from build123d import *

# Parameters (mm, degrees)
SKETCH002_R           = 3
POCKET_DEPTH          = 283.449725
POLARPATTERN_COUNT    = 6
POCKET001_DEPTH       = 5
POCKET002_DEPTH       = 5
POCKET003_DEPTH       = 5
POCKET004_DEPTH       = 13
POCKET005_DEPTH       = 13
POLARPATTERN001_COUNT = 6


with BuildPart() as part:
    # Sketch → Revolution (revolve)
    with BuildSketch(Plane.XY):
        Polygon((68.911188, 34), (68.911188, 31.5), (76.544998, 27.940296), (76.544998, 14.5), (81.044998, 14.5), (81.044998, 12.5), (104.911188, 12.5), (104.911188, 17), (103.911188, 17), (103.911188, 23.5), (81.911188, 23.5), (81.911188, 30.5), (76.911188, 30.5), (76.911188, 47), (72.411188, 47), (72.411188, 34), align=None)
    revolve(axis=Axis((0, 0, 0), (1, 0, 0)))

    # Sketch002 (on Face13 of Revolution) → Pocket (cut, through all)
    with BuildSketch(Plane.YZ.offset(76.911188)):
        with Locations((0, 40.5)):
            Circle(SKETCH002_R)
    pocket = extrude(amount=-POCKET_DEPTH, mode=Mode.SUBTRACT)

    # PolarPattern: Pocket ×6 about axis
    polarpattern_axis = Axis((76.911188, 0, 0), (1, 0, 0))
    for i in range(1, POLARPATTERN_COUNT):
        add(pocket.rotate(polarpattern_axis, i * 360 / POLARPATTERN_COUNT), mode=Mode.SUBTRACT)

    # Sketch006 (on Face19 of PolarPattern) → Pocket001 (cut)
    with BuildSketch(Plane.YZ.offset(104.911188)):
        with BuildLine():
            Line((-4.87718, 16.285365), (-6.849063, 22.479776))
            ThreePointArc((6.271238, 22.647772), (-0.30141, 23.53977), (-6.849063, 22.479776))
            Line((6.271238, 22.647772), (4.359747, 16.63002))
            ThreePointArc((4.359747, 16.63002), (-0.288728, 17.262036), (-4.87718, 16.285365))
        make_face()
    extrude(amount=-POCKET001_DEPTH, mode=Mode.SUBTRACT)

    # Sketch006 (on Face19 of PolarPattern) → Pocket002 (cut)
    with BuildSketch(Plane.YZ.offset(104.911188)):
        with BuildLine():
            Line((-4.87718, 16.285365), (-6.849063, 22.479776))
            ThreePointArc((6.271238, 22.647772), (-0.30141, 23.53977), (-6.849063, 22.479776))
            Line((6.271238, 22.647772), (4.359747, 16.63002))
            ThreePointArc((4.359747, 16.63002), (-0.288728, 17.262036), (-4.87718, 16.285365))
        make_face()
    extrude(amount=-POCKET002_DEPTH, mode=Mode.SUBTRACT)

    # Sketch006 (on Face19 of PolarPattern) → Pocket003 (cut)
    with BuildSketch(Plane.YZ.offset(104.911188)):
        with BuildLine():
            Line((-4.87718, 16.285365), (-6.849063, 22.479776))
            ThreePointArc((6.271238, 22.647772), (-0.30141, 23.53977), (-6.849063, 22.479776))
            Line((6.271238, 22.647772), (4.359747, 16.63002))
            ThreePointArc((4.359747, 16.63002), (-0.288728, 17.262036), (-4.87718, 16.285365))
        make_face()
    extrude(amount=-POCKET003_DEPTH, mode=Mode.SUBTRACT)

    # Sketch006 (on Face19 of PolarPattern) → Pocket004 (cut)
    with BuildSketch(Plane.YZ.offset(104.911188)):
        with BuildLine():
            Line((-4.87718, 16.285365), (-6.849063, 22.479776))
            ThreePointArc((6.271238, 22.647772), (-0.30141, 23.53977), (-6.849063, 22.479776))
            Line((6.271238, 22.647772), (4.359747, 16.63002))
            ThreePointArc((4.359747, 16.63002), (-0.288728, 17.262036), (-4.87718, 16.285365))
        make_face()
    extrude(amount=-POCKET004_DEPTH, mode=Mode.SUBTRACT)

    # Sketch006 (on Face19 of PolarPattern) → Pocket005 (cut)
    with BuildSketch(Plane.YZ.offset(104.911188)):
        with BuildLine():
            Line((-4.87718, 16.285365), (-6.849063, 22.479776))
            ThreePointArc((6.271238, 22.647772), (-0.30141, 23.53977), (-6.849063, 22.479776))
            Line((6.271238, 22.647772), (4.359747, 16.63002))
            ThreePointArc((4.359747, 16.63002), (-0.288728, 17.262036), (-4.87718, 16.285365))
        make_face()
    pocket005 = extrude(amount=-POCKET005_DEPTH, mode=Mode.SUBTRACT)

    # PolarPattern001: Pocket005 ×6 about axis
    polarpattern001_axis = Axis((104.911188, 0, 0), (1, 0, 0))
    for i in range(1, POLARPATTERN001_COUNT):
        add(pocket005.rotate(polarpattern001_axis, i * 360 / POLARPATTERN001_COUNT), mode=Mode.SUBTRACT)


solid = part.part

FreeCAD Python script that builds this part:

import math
import FreeCAD as App
import Part
import Sketcher
from FreeCAD import Vector
Q = App.Units.Quantity


def add_polygon(sketch, points):
    """Adds a closed chain of lines whose ends are joined by coincident constraints."""
    first, n = sketch.GeometryCount, len(points)
    for a, b in zip(points, points[1:] + points[:1]):
        sketch.addGeometry(Part.LineSegment(App.Vector(*a, 0), App.Vector(*b, 0)), False)
    for i in range(n):
        sketch.addConstraint(Sketcher.Constraint("Coincident", first + i, 2, first + (i + 1) % n, 1))

doc = App.newDocument("Part")
body = doc.addObject("PartDesign::Body", "Body")

# Sketch on XY plane
sketch1 = doc.addObject("Sketcher::SketchObject", "Sketch")
body.addObject(sketch1)
sketch1.AttachmentSupport = (doc.XY_Plane, [""])
sketch1.MapMode = "FlatFace"
add_polygon(sketch1, [(68.9, 34), (68.9, 31.5), (76.5, 27.9), (76.5, 14.5), (81, 14.5), (81, 12.5), (104.9, 12.5), (104.9, 17), (103.9, 17), (103.9, 23.5), (81.9, 23.5), (81.9, 30.5), (76.9, 30.5), (76.9, 47), (72.4, 47), (72.4, 34)])  # lines 0-15
sketch1.addConstraint(Sketcher.Constraint("Vertical", 0))
sketch1.addConstraint(Sketcher.Constraint("Vertical", 2))
sketch1.addConstraint(Sketcher.Constraint("Horizontal", 3))
sketch1.addConstraint(Sketcher.Constraint("Vertical", 4))
sketch1.addConstraint(Sketcher.Constraint("Horizontal", 5))
sketch1.addConstraint(Sketcher.Constraint("Vertical", 6))
sketch1.addConstraint(Sketcher.Constraint("Horizontal", 7))
sketch1.addConstraint(Sketcher.Constraint("Vertical", 8))
sketch1.addConstraint(Sketcher.Constraint("Horizontal", 9))
sketch1.addConstraint(Sketcher.Constraint("Vertical", 10))
sketch1.addConstraint(Sketcher.Constraint("Horizontal", 11))
sketch1.addConstraint(Sketcher.Constraint("Vertical", 12))
sketch1.addConstraint(Sketcher.Constraint("Horizontal", 13))
sketch1.addConstraint(Sketcher.Constraint("Vertical", 14))
sketch1.addConstraint(Sketcher.Constraint("Horizontal", 15))
sketch1.addConstraint(Sketcher.Constraint("Equal", 3, 13))
sketch1.addConstraint(Sketcher.Constraint("Equal", 13, 6))
sketch1.addConstraint(Sketcher.Constraint("DistanceX", 7, 2, 7, 1, Q("1 mm")))
sketch1.addConstraint(Sketcher.Constraint("DistanceX", 9, 2, 9, 1, Q("22 mm")))
sketch1.addConstraint(Sketcher.Constraint("DistanceX", 11, 2, 11, 1, Q("5 mm")))
sketch1.addConstraint(Sketcher.Constraint("DistanceY", 4, 2, 4, 1, Q("2 mm")))
sketch1.addConstraint(Sketcher.Constraint("DistanceY", 10, 1, 10, 2, Q("7 mm")))
sketch1.addConstraint(Sketcher.Constraint("DistanceY", 14, 2, 14, 1, Q("13 mm")))
sketch1.addConstraint(Sketcher.Constraint("Angle", 1, Q("-25 deg")))
sketch1.addConstraint(Sketcher.Constraint("DistanceX", 3, 1, 3, 2, Q("4.5 mm")))
sketch1.addConstraint(Sketcher.Constraint("DistanceX", 15, 2, 15, 1, Q("3.5 mm")))
sketch1.addConstraint(Sketcher.Constraint("DistanceY", 0, 2, 0, 1, Q("2.5 mm")))
sketch1.addConstraint(Sketcher.Constraint("DistanceY", 8, 1, 8, 2, Q("6.5 mm")))
sketch1.addConstraint(Sketcher.Constraint("DistanceY", 12, 1, 12, 2, Q("16.5 mm")))
sketch1.addConstraint(Sketcher.Constraint("DistanceY", -1, 1, 6, 2, Q("17 mm")))
sketch1.addConstraint(Sketcher.Constraint("DistanceX", -1, 1, 1, 2, Q("76.544998 mm")))
sketch1.addConstraint(Sketcher.Constraint("DistanceX", 5, 1, 5, 2, Q("23.86619 mm")))
revolution = doc.addObject("PartDesign::Revolution", "Revolution")
body.addObject(revolution)
revolution.Profile = sketch1
revolution.ReferenceAxis = (sketch1, ["H_Axis"])
revolution.Angle = 360

# Sketch on YZ plane
sketch2 = doc.addObject("Sketcher::SketchObject", "Sketch001")
body.addObject(sketch2)
sketch2.AttachmentSupport = (doc.YZ_Plane, [""])
sketch2.MapMode = "FlatFace"
sketch2.AttachmentOffset = App.Placement(Vector(0, 0, 76.911188), App.Rotation())
sketch2.addGeometry(Part.Circle(Vector(0, 40.5, 0), Vector(0, 0, 1), 3), False)
sketch2.addConstraint(Sketcher.Constraint("PointOnObject", 0, 3, -2))
sketch2.addConstraint(Sketcher.Constraint("Diameter", 0, Q("6 mm")))
sketch2.addConstraint(Sketcher.Constraint("DistanceY", -1, 1, 0, 3, Q("40.5 mm")))
pocket1 = doc.addObject("PartDesign::Pocket", "Pocket")
body.addObject(pocket1)
pocket1.Profile = sketch2
pocket1.Type = "ThroughAll"
doc.recompute()

polarpattern = doc.addObject("PartDesign::PolarPattern", "PolarPattern")
body.addObject(polarpattern)
polarpattern.Originals = [pocket1]
polarpattern.Axis = (doc.X_Axis, [""])
polarpattern.Angle = 360
polarpattern.Occurrences = 6
body.Tip = polarpattern

# Sketch on YZ plane
sketch3 = doc.addObject("Sketcher::SketchObject", "Sketch002")
body.addObject(sketch3)
sketch3.AttachmentSupport = (doc.YZ_Plane, [""])
sketch3.MapMode = "FlatFace"
sketch3.AttachmentOffset = App.Placement(Vector(0, 0, 104.911188), App.Rotation())
sketch3.addGeometry(Part.LineSegment(Vector(-7, 22, 0), Vector(-5, 16, 0)), False)
sketch3.addGeometry(Part.ArcOfCircle(Part.Circle(Vector(0, 4, 0), Vector(0, 0, 1), 14), math.radians(72), math.radians(112)), False)
sketch3.addGeometry(Part.LineSegment(Vector(4, 17, 0), Vector(6, 23, 0)), False)
sketch3.addGeometry(Part.ArcOfCircle(Part.Circle(Vector(0, 1, 0), Vector(0, 0, 1), 23), math.radians(74), math.radians(108)), False)
sketch3.addConstraint(Sketcher.Constraint("Coincident", 0, 2, 1, 2))
sketch3.addConstraint(Sketcher.Constraint("Coincident", 1, 1, 2, 1))
sketch3.addConstraint(Sketcher.Constraint("Coincident", 2, 2, 3, 1))
sketch3.addConstraint(Sketcher.Constraint("Coincident", 3, 2, 0, 1))
sketch3.addConstraint(Sketcher.Constraint("Radius", 3, Q("22.536849 mm")))
sketch3.addConstraint(Sketcher.Constraint("Radius", 1, Q("13.671067 mm")))
sketch3.addConstraint(Sketcher.Constraint("DistanceX", 0, 2, 1, 3, Q("5.098201 mm")))
sketch3.addConstraint(Sketcher.Constraint("DistanceX", 3, 2, 2, 2, Q("13.120301 mm")))
sketch3.addConstraint(Sketcher.Constraint("DistanceY", 1, 3, 3, 2, Q("18.8793 mm")))
sketch3.addConstraint(Sketcher.Constraint("DistanceX", 3, 2, 3, 3, Q("6.836198 mm")))
sketch3.addConstraint(Sketcher.Constraint("DistanceX", -1, 1, 1, 3, Q("0.221021 mm")))
sketch3.addConstraint(Sketcher.Constraint("DistanceY", -1, 1, 3, 3, Q("1.004769 mm")))
sketch3.addConstraint(Sketcher.Constraint("DistanceY", -1, 1, 1, 1, Q("16.63002 mm")))
sketch3.addConstraint(Sketcher.Constraint("DistanceX", -1, 1, 2, 2, Q("6.271238 mm")))
pocket2 = doc.addObject("PartDesign::Pocket", "Pocket001")
body.addObject(pocket2)
pocket2.Profile = sketch3
pocket2.Length = 5

# Sketch on YZ plane
sketch4 = doc.addObject("Sketcher::SketchObject", "Sketch003")
body.addObject(sketch4)
sketch4.AttachmentSupport = (doc.YZ_Plane, [""])
sketch4.MapMode = "FlatFace"
sketch4.AttachmentOffset = App.Placement(Vector(0, 0, 104.911188), App.Rotation())
sketch4.addGeometry(Part.LineSegment(Vector(-7, 22, 0), Vector(-5, 16, 0)), False)
sketch4.addGeometry(Part.ArcOfCircle(Part.Circle(Vector(0, 4, 0), Vector(0, 0, 1), 14), math.radians(72), math.radians(112)), False)
sketch4.addGeometry(Part.LineSegment(Vector(4, 17, 0), Vector(6, 23, 0)), False)
sketch4.addGeometry(Part.ArcOfCircle(Part.Circle(Vector(0, 1, 0), Vector(0, 0, 1), 23), math.radians(74), math.radians(108)), False)
sketch4.addConstraint(Sketcher.Constraint("Coincident", 0, 2, 1, 2))
sketch4.addConstraint(Sketcher.Constraint("Coincident", 1, 1, 2, 1))
sketch4.addConstraint(Sketcher.Constraint("Coincident", 2, 2, 3, 1))
sketch4.addConstraint(Sketcher.Constraint("Coincident", 3, 2, 0, 1))
sketch4.addConstraint(Sketcher.Constraint("Radius", 3, Q("22.536849 mm")))
sketch4.addConstraint(Sketcher.Constraint("Radius", 1, Q("13.671067 mm")))
sketch4.addConstraint(Sketcher.Constraint("DistanceX", 0, 2, 1, 3, Q("5.098201 mm")))
sketch4.addConstraint(Sketcher.Constraint("DistanceX", 3, 2, 2, 2, Q("13.120301 mm")))
sketch4.addConstraint(Sketcher.Constraint("DistanceY", 1, 3, 3, 2, Q("18.8793 mm")))
sketch4.addConstraint(Sketcher.Constraint("DistanceX", 3, 2, 3, 3, Q("6.836198 mm")))
sketch4.addConstraint(Sketcher.Constraint("DistanceX", -1, 1, 1, 3, Q("0.221021 mm")))
sketch4.addConstraint(Sketcher.Constraint("DistanceY", -1, 1, 3, 3, Q("1.004769 mm")))
sketch4.addConstraint(Sketcher.Constraint("DistanceY", -1, 1, 1, 1, Q("16.63002 mm")))
sketch4.addConstraint(Sketcher.Constraint("DistanceX", -1, 1, 2, 2, Q("6.271238 mm")))
pocket3 = doc.addObject("PartDesign::Pocket", "Pocket002")
body.addObject(pocket3)
pocket3.Profile = sketch4
pocket3.Length = 5

# Sketch on YZ plane
sketch5 = doc.addObject("Sketcher::SketchObject", "Sketch004")
body.addObject(sketch5)
sketch5.AttachmentSupport = (doc.YZ_Plane, [""])
sketch5.MapMode = "FlatFace"
sketch5.AttachmentOffset = App.Placement(Vector(0, 0, 104.911188), App.Rotation())
sketch5.addGeometry(Part.LineSegment(Vector(-7, 22, 0), Vector(-5, 16, 0)), False)
sketch5.addGeometry(Part.ArcOfCircle(Part.Circle(Vector(0, 4, 0), Vector(0, 0, 1), 14), math.radians(72), math.radians(112)), False)
sketch5.addGeometry(Part.LineSegment(Vector(4, 17, 0), Vector(6, 23, 0)), False)
sketch5.addGeometry(Part.ArcOfCircle(Part.Circle(Vector(0, 1, 0), Vector(0, 0, 1), 23), math.radians(74), math.radians(108)), False)
sketch5.addConstraint(Sketcher.Constraint("Coincident", 0, 2, 1, 2))
sketch5.addConstraint(Sketcher.Constraint("Coincident", 1, 1, 2, 1))
sketch5.addConstraint(Sketcher.Constraint("Coincident", 2, 2, 3, 1))
sketch5.addConstraint(Sketcher.Constraint("Coincident", 3, 2, 0, 1))
sketch5.addConstraint(Sketcher.Constraint("Radius", 3, Q("22.536849 mm")))
sketch5.addConstraint(Sketcher.Constraint("Radius", 1, Q("13.671067 mm")))
sketch5.addConstraint(Sketcher.Constraint("DistanceX", 0, 2, 1, 3, Q("5.098201 mm")))
sketch5.addConstraint(Sketcher.Constraint("DistanceX", 3, 2, 2, 2, Q("13.120301 mm")))
sketch5.addConstraint(Sketcher.Constraint("DistanceY", 1, 3, 3, 2, Q("18.8793 mm")))
sketch5.addConstraint(Sketcher.Constraint("DistanceX", 3, 2, 3, 3, Q("6.836198 mm")))
sketch5.addConstraint(Sketcher.Constraint("DistanceX", -1, 1, 1, 3, Q("0.221021 mm")))
sketch5.addConstraint(Sketcher.Constraint("DistanceY", -1, 1, 3, 3, Q("1.004769 mm")))
sketch5.addConstraint(Sketcher.Constraint("DistanceY", -1, 1, 1, 1, Q("16.63002 mm")))
sketch5.addConstraint(Sketcher.Constraint("DistanceX", -1, 1, 2, 2, Q("6.271238 mm")))
pocket4 = doc.addObject("PartDesign::Pocket", "Pocket003")
body.addObject(pocket4)
pocket4.Profile = sketch5
pocket4.Length = 5

# Sketch on YZ plane
sketch6 = doc.addObject("Sketcher::SketchObject", "Sketch005")
body.addObject(sketch6)
sketch6.AttachmentSupport = (doc.YZ_Plane, [""])
sketch6.MapMode = "FlatFace"
sketch6.AttachmentOffset = App.Placement(Vector(0, 0, 104.911188), App.Rotation())
sketch6.addGeometry(Part.LineSegment(Vector(-7, 22, 0), Vector(-5, 16, 0)), False)
sketch6.addGeometry(Part.ArcOfCircle(Part.Circle(Vector(0, 4, 0), Vector(0, 0, 1), 14), math.radians(72), math.radians(112)), False)
sketch6.addGeometry(Part.LineSegment(Vector(4, 17, 0), Vector(6, 23, 0)), False)
sketch6.addGeometry(Part.ArcOfCircle(Part.Circle(Vector(0, 1, 0), Vector(0, 0, 1), 23), math.radians(74), math.radians(108)), False)
sketch6.addConstraint(Sketcher.Constraint("Coincident", 0, 2, 1, 2))
sketch6.addConstraint(Sketcher.Constraint("Coincident", 1, 1, 2, 1))
sketch6.addConstraint(Sketcher.Constraint("Coincident", 2, 2, 3, 1))
sketch6.addConstraint(Sketcher.Constraint("Coincident", 3, 2, 0, 1))
sketch6.addConstraint(Sketcher.Constraint("Radius", 3, Q("22.536849 mm")))
sketch6.addConstraint(Sketcher.Constraint("Radius", 1, Q("13.671067 mm")))
sketch6.addConstraint(Sketcher.Constraint("DistanceX", 0, 2, 1, 3, Q("5.098201 mm")))
sketch6.addConstraint(Sketcher.Constraint("DistanceX", 3, 2, 2, 2, Q("13.120301 mm")))
sketch6.addConstraint(Sketcher.Constraint("DistanceY", 1, 3, 3, 2, Q("18.8793 mm")))
sketch6.addConstraint(Sketcher.Constraint("DistanceX", 3, 2, 3, 3, Q("6.836198 mm")))
sketch6.addConstraint(Sketcher.Constraint("DistanceX", -1, 1, 1, 3, Q("0.221021 mm")))
sketch6.addConstraint(Sketcher.Constraint("DistanceY", -1, 1, 3, 3, Q("1.004769 mm")))
sketch6.addConstraint(Sketcher.Constraint("DistanceY", -1, 1, 1, 1, Q("16.63002 mm")))
sketch6.addConstraint(Sketcher.Constraint("DistanceX", -1, 1, 2, 2, Q("6.271238 mm")))
pocket5 = doc.addObject("PartDesign::Pocket", "Pocket004")
body.addObject(pocket5)
pocket5.Profile = sketch6
pocket5.Length = 13

# Sketch on YZ plane
sketch7 = doc.addObject("Sketcher::SketchObject", "Sketch006")
body.addObject(sketch7)
sketch7.AttachmentSupport = (doc.YZ_Plane, [""])
sketch7.MapMode = "FlatFace"
sketch7.AttachmentOffset = App.Placement(Vector(0, 0, 104.911188), App.Rotation())
sketch7.addGeometry(Part.LineSegment(Vector(-7, 22, 0), Vector(-5, 16, 0)), False)
sketch7.addGeometry(Part.ArcOfCircle(Part.Circle(Vector(0, 4, 0), Vector(0, 0, 1), 14), math.radians(72), math.radians(112)), False)
sketch7.addGeometry(Part.LineSegment(Vector(4, 17, 0), Vector(6, 23, 0)), False)
sketch7.addGeometry(Part.ArcOfCircle(Part.Circle(Vector(0, 1, 0), Vector(0, 0, 1), 23), math.radians(74), math.radians(108)), False)
sketch7.addConstraint(Sketcher.Constraint("Coincident", 0, 2, 1, 2))
sketch7.addConstraint(Sketcher.Constraint("Coincident", 1, 1, 2, 1))
sketch7.addConstraint(Sketcher.Constraint("Coincident", 2, 2, 3, 1))
sketch7.addConstraint(Sketcher.Constraint("Coincident", 3, 2, 0, 1))
sketch7.addConstraint(Sketcher.Constraint("Radius", 3, Q("22.536849 mm")))
sketch7.addConstraint(Sketcher.Constraint("Radius", 1, Q("13.671067 mm")))
sketch7.addConstraint(Sketcher.Constraint("DistanceX", 0, 2, 1, 3, Q("5.098201 mm")))
sketch7.addConstraint(Sketcher.Constraint("DistanceX", 3, 2, 2, 2, Q("13.120301 mm")))
sketch7.addConstraint(Sketcher.Constraint("DistanceY", 1, 3, 3, 2, Q("18.8793 mm")))
sketch7.addConstraint(Sketcher.Constraint("DistanceX", 3, 2, 3, 3, Q("6.836198 mm")))
sketch7.addConstraint(Sketcher.Constraint("DistanceX", -1, 1, 1, 3, Q("0.221021 mm")))
sketch7.addConstraint(Sketcher.Constraint("DistanceY", -1, 1, 3, 3, Q("1.004769 mm")))
sketch7.addConstraint(Sketcher.Constraint("DistanceY", -1, 1, 1, 1, Q("16.63002 mm")))
sketch7.addConstraint(Sketcher.Constraint("DistanceX", -1, 1, 2, 2, Q("6.271238 mm")))
pocket6 = doc.addObject("PartDesign::Pocket", "Pocket005")
body.addObject(pocket6)
pocket6.Profile = sketch7
pocket6.Length = 13
doc.recompute()

polarpattern2 = doc.addObject("PartDesign::PolarPattern", "PolarPattern001")
body.addObject(polarpattern2)
polarpattern2.Originals = [pocket6]
polarpattern2.Axis = (doc.X_Axis, [""])
polarpattern2.Angle = 360
polarpattern2.Occurrences = 6
body.Tip = polarpattern2

doc.recompute()
